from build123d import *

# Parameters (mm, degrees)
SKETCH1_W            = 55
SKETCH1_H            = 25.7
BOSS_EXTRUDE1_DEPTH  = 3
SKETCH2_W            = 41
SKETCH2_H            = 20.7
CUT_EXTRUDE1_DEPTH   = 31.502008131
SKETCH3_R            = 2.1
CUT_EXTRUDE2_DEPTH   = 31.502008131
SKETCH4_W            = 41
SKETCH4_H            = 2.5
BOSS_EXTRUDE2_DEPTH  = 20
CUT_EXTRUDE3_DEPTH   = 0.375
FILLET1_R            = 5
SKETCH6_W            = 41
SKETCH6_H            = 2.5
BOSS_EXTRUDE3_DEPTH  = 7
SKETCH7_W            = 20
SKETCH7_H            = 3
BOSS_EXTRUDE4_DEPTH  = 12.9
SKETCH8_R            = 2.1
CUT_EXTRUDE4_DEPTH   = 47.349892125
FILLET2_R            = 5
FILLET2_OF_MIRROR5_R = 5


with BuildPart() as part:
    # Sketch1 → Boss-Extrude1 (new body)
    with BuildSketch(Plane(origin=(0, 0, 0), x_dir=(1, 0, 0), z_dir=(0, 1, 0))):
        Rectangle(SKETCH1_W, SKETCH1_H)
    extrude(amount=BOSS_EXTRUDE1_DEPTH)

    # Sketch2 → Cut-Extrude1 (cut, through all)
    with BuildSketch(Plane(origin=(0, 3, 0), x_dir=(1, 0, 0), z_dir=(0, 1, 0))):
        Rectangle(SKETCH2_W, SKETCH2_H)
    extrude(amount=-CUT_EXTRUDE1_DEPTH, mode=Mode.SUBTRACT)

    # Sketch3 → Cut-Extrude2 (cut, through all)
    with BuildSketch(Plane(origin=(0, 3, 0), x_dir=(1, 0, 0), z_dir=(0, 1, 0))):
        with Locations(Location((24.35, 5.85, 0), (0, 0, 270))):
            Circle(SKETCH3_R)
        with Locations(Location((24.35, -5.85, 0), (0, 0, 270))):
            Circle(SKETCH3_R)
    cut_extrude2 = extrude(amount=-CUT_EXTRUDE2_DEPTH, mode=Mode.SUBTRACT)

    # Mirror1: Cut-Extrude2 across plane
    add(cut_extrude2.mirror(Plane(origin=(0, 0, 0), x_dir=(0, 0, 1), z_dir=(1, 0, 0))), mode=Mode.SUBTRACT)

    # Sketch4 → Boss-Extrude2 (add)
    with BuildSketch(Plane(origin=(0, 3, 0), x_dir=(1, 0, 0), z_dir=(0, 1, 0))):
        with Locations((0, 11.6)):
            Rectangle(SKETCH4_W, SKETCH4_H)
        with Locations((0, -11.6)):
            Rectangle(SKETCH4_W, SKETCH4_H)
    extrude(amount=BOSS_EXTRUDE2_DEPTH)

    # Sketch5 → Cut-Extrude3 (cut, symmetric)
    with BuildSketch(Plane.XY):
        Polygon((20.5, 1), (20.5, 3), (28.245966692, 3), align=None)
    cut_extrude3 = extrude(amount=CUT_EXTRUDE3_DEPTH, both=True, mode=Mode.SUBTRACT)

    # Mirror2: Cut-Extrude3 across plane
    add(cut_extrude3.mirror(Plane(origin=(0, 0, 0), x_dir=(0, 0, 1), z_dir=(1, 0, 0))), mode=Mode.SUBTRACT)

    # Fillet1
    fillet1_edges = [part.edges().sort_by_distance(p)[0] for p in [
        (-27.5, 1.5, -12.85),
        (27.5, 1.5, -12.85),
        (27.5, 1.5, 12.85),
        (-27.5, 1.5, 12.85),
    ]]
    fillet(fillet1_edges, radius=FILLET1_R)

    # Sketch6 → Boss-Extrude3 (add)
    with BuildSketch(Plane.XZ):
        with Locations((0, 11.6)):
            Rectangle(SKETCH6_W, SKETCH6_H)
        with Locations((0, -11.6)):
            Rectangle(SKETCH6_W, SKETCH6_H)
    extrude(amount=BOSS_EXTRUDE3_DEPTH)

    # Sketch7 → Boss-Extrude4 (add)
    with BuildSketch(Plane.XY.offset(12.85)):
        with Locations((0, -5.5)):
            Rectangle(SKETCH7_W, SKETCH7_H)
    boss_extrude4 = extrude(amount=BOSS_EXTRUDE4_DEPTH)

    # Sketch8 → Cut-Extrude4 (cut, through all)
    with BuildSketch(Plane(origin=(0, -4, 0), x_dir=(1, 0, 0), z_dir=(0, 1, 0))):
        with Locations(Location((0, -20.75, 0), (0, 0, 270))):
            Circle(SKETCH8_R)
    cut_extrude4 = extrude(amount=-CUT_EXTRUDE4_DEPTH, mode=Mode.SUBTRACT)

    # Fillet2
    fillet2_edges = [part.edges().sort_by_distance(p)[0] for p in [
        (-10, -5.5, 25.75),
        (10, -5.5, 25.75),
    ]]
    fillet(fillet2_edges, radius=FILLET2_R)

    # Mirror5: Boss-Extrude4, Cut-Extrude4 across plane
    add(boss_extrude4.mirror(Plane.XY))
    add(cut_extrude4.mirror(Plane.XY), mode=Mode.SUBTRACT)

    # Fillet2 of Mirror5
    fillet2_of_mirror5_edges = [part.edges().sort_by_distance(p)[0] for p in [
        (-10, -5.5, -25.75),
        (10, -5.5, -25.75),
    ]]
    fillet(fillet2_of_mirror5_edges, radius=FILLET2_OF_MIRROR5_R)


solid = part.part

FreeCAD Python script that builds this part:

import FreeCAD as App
import Part
import Sketcher
from FreeCAD import Vector


def edges_at(feature, points):
    """Names of the edges that pass closest to the given points."""
    edges = feature.Shape.Edges
    near = lambda p: min(range(len(edges)), key=lambda i: edges[i].distToShape(Part.Vertex(*p))[0])
    return sorted({f"Edge{near(p) + 1}" for p in points})

doc = App.newDocument("Part")
body = doc.addObject("PartDesign::Body", "Body")

sketch1 = body.newObject("Sketcher::SketchObject", "Sketch")
sketch1.AttachmentSupport = (doc.getObject("XZ_Plane"), [""])
sketch1.MapMode = "FlatFace"
sketch1.addGeometry(Part.LineSegment(Vector(-28, -13, 0), Vector(-28, 13, 0)), False)
sketch1.addGeometry(Part.LineSegment(Vector(-28, 13, 0), Vector(28, 13, 0)), False)
sketch1.addGeometry(Part.LineSegment(Vector(28, 13, 0), Vector(28, -13, 0)), False)
sketch1.addGeometry(Part.LineSegment(Vector(28, -13, 0), Vector(-28, -13, 0)), False)
sketch1.addConstraint(Sketcher.Constraint("Coincident", 0, 2, 1, 1))
sketch1.addConstraint(Sketcher.Constraint("Coincident", 1, 2, 2, 1))
sketch1.addConstraint(Sketcher.Constraint("Coincident", 2, 2, 3, 1))
sketch1.addConstraint(Sketcher.Constraint("Coincident", 3, 2, 0, 1))
sketch1.addConstraint(Sketcher.Constraint("Vertical", 0))
sketch1.addConstraint(Sketcher.Constraint("Horizontal", 1))
sketch1.addConstraint(Sketcher.Constraint("Vertical", 2))
sketch1.addConstraint(Sketcher.Constraint("Horizontal", 3))
sketch1.addConstraint(Sketcher.Constraint("Symmetric", 0, 2, 2, 2, -1, 1))
sketch1.addConstraint(Sketcher.Constraint("DistanceX", 1, 1, 1, 2, 55.0))
sketch1.addConstraint(Sketcher.Constraint("DistanceY", 0, 1, 0, 2, 25.7))
pad1 = body.newObject("PartDesign::Pad", "Pad")
pad1.Profile = sketch1
pad1.Length = 3
pad1.Reversed = True

sketch2 = body.newObject("Sketcher::SketchObject", "Sketch001")
sketch2.AttachmentSupport = (doc.getObject("XZ_Plane"), [""])
sketch2.MapMode = "FlatFace"
sketch2.AttachmentOffset = App.Placement(Vector(0, 0, -3), App.Rotation())
sketch2.addGeometry(Part.LineSegment(Vector(-20, -10, 0), Vector(-20, 10, 0)), False)
sketch2.addGeometry(Part.LineSegment(Vector(-20, 10, 0), Vector(20, 10, 0)), False)
sketch2.addGeometry(Part.LineSegment(Vector(20, 10, 0), Vector(20, -10, 0)), False)
sketch2.addGeometry(Part.LineSegment(Vector(20, -10, 0), Vector(-20, -10, 0)), False)
sketch2.addConstraint(Sketcher.Constraint("Coincident", 0, 2, 1, 1))
sketch2.addConstraint(Sketcher.Constraint("Coincident", 1, 2, 2, 1))
sketch2.addConstraint(Sketcher.Constraint("Coincident", 2, 2, 3, 1))
sketch2.addConstraint(Sketcher.Constraint("Coincident", 3, 2, 0, 1))
sketch2.addConstraint(Sketcher.Constraint("Vertical", 0))
sketch2.addConstraint(Sketcher.Constraint("Horizontal", 1))
sketch2.addConstraint(Sketcher.Constraint("Vertical", 2))
sketch2.addConstraint(Sketcher.Constraint("Horizontal", 3))
sketch2.addConstraint(Sketcher.Constraint("Symmetric", 0, 2, 2, 2, -1, 1))
sketch2.addConstraint(Sketcher.Constraint("DistanceX", 1, 1, 1, 2, 41.0))
sketch2.addConstraint(Sketcher.Constraint("DistanceY", 0, 1, 0, 2, 20.7))
pocket1 = body.newObject("PartDesign::Pocket", "Pocket")
pocket1.Profile = sketch2
pocket1.Type = "ThroughAll"
pocket1.Reversed = True

sketch3 = body.newObject("Sketcher::SketchObject", "Sketch002")
sketch3.AttachmentSupport = (doc.getObject("XZ_Plane"), [""])
sketch3.MapMode = "FlatFace"
sketch3.AttachmentOffset = App.Placement(Vector(0, 0, -3), App.Rotation())
sketch3.addGeometry(Part.Circle(Vector(24.4, -5.8, 0), Vector(0, 0, 1), 2.1), False)
sketch3.addGeometry(Part.Circle(Vector(24.4, 5.8, 0), Vector(0, 0, 1), 2.1), False)
sketch3.addConstraint(Sketcher.Constraint("Equal", 0, 1))
sketch3.addConstraint(Sketcher.Constraint("Symmetric", 0, 3, 1, 3, -1))
sketch3.addConstraint(Sketcher.Constraint("Diameter", 0, 4.2))
sketch3.addConstraint(Sketcher.Constraint("DistanceY", 0, 3, 1, 3, 11.7))
sketch3.addConstraint(Sketcher.Constraint("DistanceX", -1, 1, 0, 3, 24.35))
pocket2 = body.newObject("PartDesign::Pocket", "Pocket001")
pocket2.Profile = sketch3
pocket2.Type = "ThroughAll"
pocket2.Reversed = True
doc.recompute()

mirrored = body.newObject("PartDesign::Mirrored", "Mirrored")
mirrored.Originals = [pocket2]
mirrored.MirrorPlane = (doc.getObject("YZ_Plane"), [""])
body.Tip = mirrored

sketch4 = body.newObject("Sketcher::SketchObject", "Sketch003")
sketch4.AttachmentSupport = (doc.getObject("XZ_Plane"), [""])
sketch4.MapMode = "FlatFace"
sketch4.AttachmentOffset = App.Placement(Vector(0, 0, -3), App.Rotation())
sketch4.addGeometry(Part.LineSegment(Vector(-20.5, -12.8, 0), Vector(-20.5, -10.3, 0)), False)
sketch4.addGeometry(Part.LineSegment(Vector(-20.5, -10.3, 0), Vector(20.5, -10.3, 0)), False)
sketch4.addGeometry(Part.LineSegment(Vector(20.5, -10.3, 0), Vector(20.5, -12.8, 0)), False)
sketch4.addGeometry(Part.LineSegment(Vector(20.5, -12.8, 0), Vector(-20.5, -12.8, 0)), False)
sketch4.addGeometry(Part.LineSegment(Vector(-20.5, 10.3, 0), Vector(-20.5, 12.8, 0)), False)
sketch4.addGeometry(Part.LineSegment(Vector(-20.5, 12.8, 0), Vector(20.5, 12.8, 0)), False)
sketch4.addGeometry(Part.LineSegment(Vector(20.5, 12.8, 0), Vector(20.5, 10.3, 0)), False)
sketch4.addGeometry(Part.LineSegment(Vector(20.5, 10.3, 0), Vector(-20.5, 10.3, 0)), False)
sketch4.addConstraint(Sketcher.Constraint("Coincident", 0, 2, 1, 1))
sketch4.addConstraint(Sketcher.Constraint("Coincident", 1, 2, 2, 1))
sketch4.addConstraint(Sketcher.Constraint("Coincident", 2, 2, 3, 1))
sketch4.addConstraint(Sketcher.Constraint("Coincident", 3, 2, 0, 1))
sketch4.addConstraint(Sketcher.Constraint("Coincident", 4, 2, 5, 1))
sketch4.addConstraint(Sketcher.Constraint("Coincident", 5, 2, 6, 1))
sketch4.addConstraint(Sketcher.Constraint("Coincident", 6, 2, 7, 1))
sketch4.addConstraint(Sketcher.Constraint("Coincident", 7, 2, 4, 1))
sketch4.addConstraint(Sketcher.Constraint("Vertical", 0))
sketch4.addConstraint(Sketcher.Constraint("Horizontal", 1))
sketch4.addConstraint(Sketcher.Constraint("Vertical", 2))
sketch4.addConstraint(Sketcher.Constraint("Horizontal", 3))
sketch4.addConstraint(Sketcher.Constraint("Vertical", 4))
sketch4.addConstraint(Sketcher.Constraint("Horizontal", 5))
sketch4.addConstraint(Sketcher.Constraint("Vertical", 6))
sketch4.addConstraint(Sketcher.Constraint("Horizontal", 7))
sketch4.addConstraint(Sketcher.Constraint("Symmetric", 2, 2, 4, 2, -1, 1))
sketch4.addConstraint(Sketcher.Constraint("Symmetric", 0, 2, 6, 2, -1, 1))
sketch4.addConstraint(Sketcher.Constraint("Vertical", 3, 2, 4, 2))
sketch4.addConstraint(Sketcher.Constraint("DistanceX", 1, 1, 1, 2, 41.0))
sketch4.addConstraint(Sketcher.Constraint("DistanceY", 0, 1, 0, 2, 2.5))
sketch4.addConstraint(Sketcher.Constraint("DistanceY", 0, 2, 4, 2, 23.2))
pad2 = body.newObject("PartDesign::Pad", "Pad001")
pad2.Profile = sketch4
pad2.Length = 20
pad2.Reversed = True

sketch5 = body.newObject("Sketcher::SketchObject", "Sketch004")
sketch5.AttachmentSupport = (doc.getObject("XY_Plane"), [""])
sketch5.MapMode = "FlatFace"
sketch5.addGeometry(Part.LineSegment(Vector(20.5, 3, 0), Vector(20.5, 1, 0)), False)
sketch5.addGeometry(Part.LineSegment(Vector(20.5, 1, 0), Vector(28.2, 3, 0)), False)
sketch5.addGeometry(Part.LineSegment(Vector(28.2, 3, 0), Vector(20.5, 3, 0)), False)
sketch5.addConstraint(Sketcher.Constraint("Coincident", 0, 2, 1, 1))
sketch5.addConstraint(Sketcher.Constraint("Coincident", 1, 2, 2, 1))
sketch5.addConstraint(Sketcher.Constraint("Coincident", 2, 2, 0, 1))
sketch5.addConstraint(Sketcher.Constraint("Vertical", 0))
sketch5.addConstraint(Sketcher.Constraint("Horizontal", 2))
sketch5.addConstraint(Sketcher.Constraint("DistanceY", 0, 2, 0, 1, 2.0))
sketch5.addConstraint(Sketcher.Constraint("Distance", 1, 8.0))
sketch5.addConstraint(Sketcher.Constraint("DistanceY", -1, 1, 0, 2, 1.0))
sketch5.addConstraint(Sketcher.Constraint("DistanceX", -1, 1, 0, 2, 20.5))
pocket3 = body.newObject("PartDesign::Pocket", "Pocket002")
pocket3.Profile = sketch5
pocket3.Length = 0.75
pocket3.Midplane = True
doc.recompute()

mirrored2 = body.newObject("PartDesign::Mirrored", "Mirrored001")
mirrored2.Originals = [pocket3]
mirrored2.MirrorPlane = (doc.getObject("YZ_Plane"), [""])
body.Tip = mirrored2
doc.recompute()

fillet = body.newObject("PartDesign::Fillet", "Fillet")
fillet.Base = (mirrored2, edges_at(mirrored2, [
    (-27.5, 1.5, -12.85),
    (27.5, 1.5, -12.85),
    (27.5, 1.5, 12.85),
    (-27.5, 1.5, 12.85),
]))
fillet.Radius = 5

sketch6 = body.newObject("Sketcher::SketchObject", "Sketch005")
sketch6.AttachmentSupport = (doc.getObject("XZ_Plane"), [""])
sketch6.MapMode = "FlatFace"
sketch6.addGeometry(Part.LineSegment(Vector(-20.5, 12.8, 0), Vector(-20.5, 10.3, 0)), False)
sketch6.addGeometry(Part.LineSegment(Vector(-20.5, 10.3, 0), Vector(20.5, 10.3, 0)), False)
sketch6.addGeometry(Part.LineSegment(Vector(20.5, 10.3, 0), Vector(20.5, 12.8, 0)), False)
sketch6.addGeometry(Part.LineSegment(Vector(20.5, 12.8, 0), Vector(-20.5, 12.8, 0)), False)
sketch6.addGeometry(Part.LineSegment(Vector(-20.5, -10.3, 0), Vector(-20.5, -12.8, 0)), False)
sketch6.addGeometry(Part.LineSegment(Vector(-20.5, -12.8, 0), Vector(20.5, -12.8, 0)), False)
sketch6.addGeometry(Part.LineSegment(Vector(20.5, -12.8, 0), Vector(20.5, -10.3, 0)), False)
sketch6.addGeometry(Part.LineSegment(Vector(20.5, -10.3, 0), Vector(-20.5, -10.3, 0)), False)
sketch6.addConstraint(Sketcher.Constraint("Coincident", 0, 2, 1, 1))
sketch6.addConstraint(Sketcher.Constraint("Coincident", 1, 2, 2, 1))
sketch6.addConstraint(Sketcher.Constraint("Coincident", 2, 2, 3, 1))
sketch6.addConstraint(Sketcher.Constraint("Coincident", 3, 2, 0, 1))
sketch6.addConstraint(Sketcher.Constraint("Coincident", 4, 2, 5, 1))
sketch6.addConstraint(Sketcher.Constraint("Coincident", 5, 2, 6, 1))
sketch6.addConstraint(Sketcher.Constraint("Coincident", 6, 2, 7, 1))
sketch6.addConstraint(Sketcher.Constraint("Coincident", 7, 2, 4, 1))
sketch6.addConstraint(Sketcher.Constraint("Vertical", 0))
sketch6.addConstraint(Sketcher.Constraint("Horizontal", 1))
sketch6.addConstraint(Sketcher.Constraint("Vertical", 2))
sketch6.addConstraint(Sketcher.Constraint("Horizontal", 3))
sketch6.addConstraint(Sketcher.Constraint("Vertical", 4))
sketch6.addConstraint(Sketcher.Constraint("Horizontal", 5))
sketch6.addConstraint(Sketcher.Constraint("Vertical", 6))
sketch6.addConstraint(Sketcher.Constraint("Horizontal", 7))
sketch6.addConstraint(Sketcher.Constraint("Symmetric", 2, 2, 4, 2, -1, 1))
sketch6.addConstraint(Sketcher.Constraint("Symmetric", 0, 2, 6, 2, -1, 1))
sketch6.addConstraint(Sketcher.Constraint("Vertical", 3, 2, 4, 2))
sketch6.addConstraint(Sketcher.Constraint("DistanceX", 1, 1, 1, 2, 41.0))
sketch6.addConstraint(Sketcher.Constraint("DistanceY", 0, 2, 0, 1, 2.5))
sketch6.addConstraint(Sketcher.Constraint("DistanceY", 4, 2, 0, 2, 23.2))
pad3 = body.newObject("PartDesign::Pad", "Pad002")
pad3.Profile = sketch6
pad3.Length = 7

sketch7 = body.newObject("Sketcher::SketchObject", "Sketch006")
sketch7.AttachmentSupport = (doc.getObject("XY_Plane"), [""])
sketch7.MapMode = "FlatFace"
sketch7.AttachmentOffset = App.Placement(Vector(0, 0, 12.85), App.Rotation())
sketch7.addGeometry(Part.LineSegment(Vector(-10, -4, 0), Vector(-10, -7, 0)), False)
sketch7.addGeometry(Part.LineSegment(Vector(-10, -7, 0), Vector(10, -7, 0)), False)
sketch7.addGeometry(Part.LineSegment(Vector(10, -7, 0), Vector(10, -4, 0)), False)
sketch7.addGeometry(Part.LineSegment(Vector(10, -4, 0), Vector(-10, -4, 0)), False)
sketch7.addConstraint(Sketcher.Constraint("Coincident", 0, 2, 1, 1))
sketch7.addConstraint(Sketcher.Constraint("Coincident", 1, 2, 2, 1))
sketch7.addConstraint(Sketcher.Constraint("Coincident", 2, 2, 3, 1))
sketch7.addConstraint(Sketcher.Constraint("Coincident", 3, 2, 0, 1))
sketch7.addConstraint(Sketcher.Constraint("Vertical", 0))
sketch7.addConstraint(Sketcher.Constraint("Horizontal", 1))
sketch7.addConstraint(Sketcher.Constraint("Vertical", 2))
sketch7.addConstraint(Sketcher.Constraint("Horizontal", 3))
sketch7.addConstraint(Sketcher.Constraint("DistanceX", 1, 1, 1, 2, 20.0))
sketch7.addConstraint(Sketcher.Constraint("DistanceY", 0, 2, 0, 1, 3.0))
sketch7.addConstraint(Sketcher.Constraint("DistanceX", 0, 2, -1, 1, 10.0))
sketch7.addConstraint(Sketcher.Constraint("DistanceY", 0, 2, -1, 1, 7.0))
pad4 = body.newObject("PartDesign::Pad", "Pad003")
pad4.Profile = sketch7
pad4.Length = 12.9

sketch8 = body.newObject("Sketcher::SketchObject", "Sketch007")
sketch8.AttachmentSupport = (doc.getObject("XZ_Plane"), [""])
sketch8.MapMode = "FlatFace"
sketch8.AttachmentOffset = App.Placement(Vector(0, 0, 4), App.Rotation())
sketch8.addGeometry(Part.Circle(Vector(0, 20.8, 0), Vector(0, 0, 1), 2.1), False)
sketch8.addConstraint(Sketcher.Constraint("PointOnObject", 0, 3, -2))
sketch8.addConstraint(Sketcher.Constraint("Diameter", 0, 4.2))
sketch8.addConstraint(Sketcher.Constraint("DistanceY", -1, 1, 0, 3, 20.75))
pocket4 = body.newObject("PartDesign::Pocket", "Pocket003")
pocket4.Profile = sketch8
pocket4.Type = "ThroughAll"
pocket4.Reversed = True
doc.recompute()

fillet2 = body.newObject("PartDesign::Fillet", "Fillet001")
fillet2.Base = (pocket4, edges_at(pocket4, [(-10, -5.5, 25.75), (10, -5.5, 25.75)]))
fillet2.Radius = 5
doc.recompute()

mirrored3 = body.newObject("PartDesign::Mirrored", "Mirrored002")
mirrored3.Originals = [pad4, pocket4]
mirrored3.MirrorPlane = (doc.getObject("XY_Plane"), [""])
body.Tip = mirrored3
doc.recompute()

fillet3 = body.newObject("PartDesign::Fillet", "Fillet002")
fillet3.Base = (mirrored3, edges_at(mirrored3, [(-10, -5.5, -25.75), (10, -5.5, -25.75)]))
fillet3.Radius = 5

doc.recompute()
